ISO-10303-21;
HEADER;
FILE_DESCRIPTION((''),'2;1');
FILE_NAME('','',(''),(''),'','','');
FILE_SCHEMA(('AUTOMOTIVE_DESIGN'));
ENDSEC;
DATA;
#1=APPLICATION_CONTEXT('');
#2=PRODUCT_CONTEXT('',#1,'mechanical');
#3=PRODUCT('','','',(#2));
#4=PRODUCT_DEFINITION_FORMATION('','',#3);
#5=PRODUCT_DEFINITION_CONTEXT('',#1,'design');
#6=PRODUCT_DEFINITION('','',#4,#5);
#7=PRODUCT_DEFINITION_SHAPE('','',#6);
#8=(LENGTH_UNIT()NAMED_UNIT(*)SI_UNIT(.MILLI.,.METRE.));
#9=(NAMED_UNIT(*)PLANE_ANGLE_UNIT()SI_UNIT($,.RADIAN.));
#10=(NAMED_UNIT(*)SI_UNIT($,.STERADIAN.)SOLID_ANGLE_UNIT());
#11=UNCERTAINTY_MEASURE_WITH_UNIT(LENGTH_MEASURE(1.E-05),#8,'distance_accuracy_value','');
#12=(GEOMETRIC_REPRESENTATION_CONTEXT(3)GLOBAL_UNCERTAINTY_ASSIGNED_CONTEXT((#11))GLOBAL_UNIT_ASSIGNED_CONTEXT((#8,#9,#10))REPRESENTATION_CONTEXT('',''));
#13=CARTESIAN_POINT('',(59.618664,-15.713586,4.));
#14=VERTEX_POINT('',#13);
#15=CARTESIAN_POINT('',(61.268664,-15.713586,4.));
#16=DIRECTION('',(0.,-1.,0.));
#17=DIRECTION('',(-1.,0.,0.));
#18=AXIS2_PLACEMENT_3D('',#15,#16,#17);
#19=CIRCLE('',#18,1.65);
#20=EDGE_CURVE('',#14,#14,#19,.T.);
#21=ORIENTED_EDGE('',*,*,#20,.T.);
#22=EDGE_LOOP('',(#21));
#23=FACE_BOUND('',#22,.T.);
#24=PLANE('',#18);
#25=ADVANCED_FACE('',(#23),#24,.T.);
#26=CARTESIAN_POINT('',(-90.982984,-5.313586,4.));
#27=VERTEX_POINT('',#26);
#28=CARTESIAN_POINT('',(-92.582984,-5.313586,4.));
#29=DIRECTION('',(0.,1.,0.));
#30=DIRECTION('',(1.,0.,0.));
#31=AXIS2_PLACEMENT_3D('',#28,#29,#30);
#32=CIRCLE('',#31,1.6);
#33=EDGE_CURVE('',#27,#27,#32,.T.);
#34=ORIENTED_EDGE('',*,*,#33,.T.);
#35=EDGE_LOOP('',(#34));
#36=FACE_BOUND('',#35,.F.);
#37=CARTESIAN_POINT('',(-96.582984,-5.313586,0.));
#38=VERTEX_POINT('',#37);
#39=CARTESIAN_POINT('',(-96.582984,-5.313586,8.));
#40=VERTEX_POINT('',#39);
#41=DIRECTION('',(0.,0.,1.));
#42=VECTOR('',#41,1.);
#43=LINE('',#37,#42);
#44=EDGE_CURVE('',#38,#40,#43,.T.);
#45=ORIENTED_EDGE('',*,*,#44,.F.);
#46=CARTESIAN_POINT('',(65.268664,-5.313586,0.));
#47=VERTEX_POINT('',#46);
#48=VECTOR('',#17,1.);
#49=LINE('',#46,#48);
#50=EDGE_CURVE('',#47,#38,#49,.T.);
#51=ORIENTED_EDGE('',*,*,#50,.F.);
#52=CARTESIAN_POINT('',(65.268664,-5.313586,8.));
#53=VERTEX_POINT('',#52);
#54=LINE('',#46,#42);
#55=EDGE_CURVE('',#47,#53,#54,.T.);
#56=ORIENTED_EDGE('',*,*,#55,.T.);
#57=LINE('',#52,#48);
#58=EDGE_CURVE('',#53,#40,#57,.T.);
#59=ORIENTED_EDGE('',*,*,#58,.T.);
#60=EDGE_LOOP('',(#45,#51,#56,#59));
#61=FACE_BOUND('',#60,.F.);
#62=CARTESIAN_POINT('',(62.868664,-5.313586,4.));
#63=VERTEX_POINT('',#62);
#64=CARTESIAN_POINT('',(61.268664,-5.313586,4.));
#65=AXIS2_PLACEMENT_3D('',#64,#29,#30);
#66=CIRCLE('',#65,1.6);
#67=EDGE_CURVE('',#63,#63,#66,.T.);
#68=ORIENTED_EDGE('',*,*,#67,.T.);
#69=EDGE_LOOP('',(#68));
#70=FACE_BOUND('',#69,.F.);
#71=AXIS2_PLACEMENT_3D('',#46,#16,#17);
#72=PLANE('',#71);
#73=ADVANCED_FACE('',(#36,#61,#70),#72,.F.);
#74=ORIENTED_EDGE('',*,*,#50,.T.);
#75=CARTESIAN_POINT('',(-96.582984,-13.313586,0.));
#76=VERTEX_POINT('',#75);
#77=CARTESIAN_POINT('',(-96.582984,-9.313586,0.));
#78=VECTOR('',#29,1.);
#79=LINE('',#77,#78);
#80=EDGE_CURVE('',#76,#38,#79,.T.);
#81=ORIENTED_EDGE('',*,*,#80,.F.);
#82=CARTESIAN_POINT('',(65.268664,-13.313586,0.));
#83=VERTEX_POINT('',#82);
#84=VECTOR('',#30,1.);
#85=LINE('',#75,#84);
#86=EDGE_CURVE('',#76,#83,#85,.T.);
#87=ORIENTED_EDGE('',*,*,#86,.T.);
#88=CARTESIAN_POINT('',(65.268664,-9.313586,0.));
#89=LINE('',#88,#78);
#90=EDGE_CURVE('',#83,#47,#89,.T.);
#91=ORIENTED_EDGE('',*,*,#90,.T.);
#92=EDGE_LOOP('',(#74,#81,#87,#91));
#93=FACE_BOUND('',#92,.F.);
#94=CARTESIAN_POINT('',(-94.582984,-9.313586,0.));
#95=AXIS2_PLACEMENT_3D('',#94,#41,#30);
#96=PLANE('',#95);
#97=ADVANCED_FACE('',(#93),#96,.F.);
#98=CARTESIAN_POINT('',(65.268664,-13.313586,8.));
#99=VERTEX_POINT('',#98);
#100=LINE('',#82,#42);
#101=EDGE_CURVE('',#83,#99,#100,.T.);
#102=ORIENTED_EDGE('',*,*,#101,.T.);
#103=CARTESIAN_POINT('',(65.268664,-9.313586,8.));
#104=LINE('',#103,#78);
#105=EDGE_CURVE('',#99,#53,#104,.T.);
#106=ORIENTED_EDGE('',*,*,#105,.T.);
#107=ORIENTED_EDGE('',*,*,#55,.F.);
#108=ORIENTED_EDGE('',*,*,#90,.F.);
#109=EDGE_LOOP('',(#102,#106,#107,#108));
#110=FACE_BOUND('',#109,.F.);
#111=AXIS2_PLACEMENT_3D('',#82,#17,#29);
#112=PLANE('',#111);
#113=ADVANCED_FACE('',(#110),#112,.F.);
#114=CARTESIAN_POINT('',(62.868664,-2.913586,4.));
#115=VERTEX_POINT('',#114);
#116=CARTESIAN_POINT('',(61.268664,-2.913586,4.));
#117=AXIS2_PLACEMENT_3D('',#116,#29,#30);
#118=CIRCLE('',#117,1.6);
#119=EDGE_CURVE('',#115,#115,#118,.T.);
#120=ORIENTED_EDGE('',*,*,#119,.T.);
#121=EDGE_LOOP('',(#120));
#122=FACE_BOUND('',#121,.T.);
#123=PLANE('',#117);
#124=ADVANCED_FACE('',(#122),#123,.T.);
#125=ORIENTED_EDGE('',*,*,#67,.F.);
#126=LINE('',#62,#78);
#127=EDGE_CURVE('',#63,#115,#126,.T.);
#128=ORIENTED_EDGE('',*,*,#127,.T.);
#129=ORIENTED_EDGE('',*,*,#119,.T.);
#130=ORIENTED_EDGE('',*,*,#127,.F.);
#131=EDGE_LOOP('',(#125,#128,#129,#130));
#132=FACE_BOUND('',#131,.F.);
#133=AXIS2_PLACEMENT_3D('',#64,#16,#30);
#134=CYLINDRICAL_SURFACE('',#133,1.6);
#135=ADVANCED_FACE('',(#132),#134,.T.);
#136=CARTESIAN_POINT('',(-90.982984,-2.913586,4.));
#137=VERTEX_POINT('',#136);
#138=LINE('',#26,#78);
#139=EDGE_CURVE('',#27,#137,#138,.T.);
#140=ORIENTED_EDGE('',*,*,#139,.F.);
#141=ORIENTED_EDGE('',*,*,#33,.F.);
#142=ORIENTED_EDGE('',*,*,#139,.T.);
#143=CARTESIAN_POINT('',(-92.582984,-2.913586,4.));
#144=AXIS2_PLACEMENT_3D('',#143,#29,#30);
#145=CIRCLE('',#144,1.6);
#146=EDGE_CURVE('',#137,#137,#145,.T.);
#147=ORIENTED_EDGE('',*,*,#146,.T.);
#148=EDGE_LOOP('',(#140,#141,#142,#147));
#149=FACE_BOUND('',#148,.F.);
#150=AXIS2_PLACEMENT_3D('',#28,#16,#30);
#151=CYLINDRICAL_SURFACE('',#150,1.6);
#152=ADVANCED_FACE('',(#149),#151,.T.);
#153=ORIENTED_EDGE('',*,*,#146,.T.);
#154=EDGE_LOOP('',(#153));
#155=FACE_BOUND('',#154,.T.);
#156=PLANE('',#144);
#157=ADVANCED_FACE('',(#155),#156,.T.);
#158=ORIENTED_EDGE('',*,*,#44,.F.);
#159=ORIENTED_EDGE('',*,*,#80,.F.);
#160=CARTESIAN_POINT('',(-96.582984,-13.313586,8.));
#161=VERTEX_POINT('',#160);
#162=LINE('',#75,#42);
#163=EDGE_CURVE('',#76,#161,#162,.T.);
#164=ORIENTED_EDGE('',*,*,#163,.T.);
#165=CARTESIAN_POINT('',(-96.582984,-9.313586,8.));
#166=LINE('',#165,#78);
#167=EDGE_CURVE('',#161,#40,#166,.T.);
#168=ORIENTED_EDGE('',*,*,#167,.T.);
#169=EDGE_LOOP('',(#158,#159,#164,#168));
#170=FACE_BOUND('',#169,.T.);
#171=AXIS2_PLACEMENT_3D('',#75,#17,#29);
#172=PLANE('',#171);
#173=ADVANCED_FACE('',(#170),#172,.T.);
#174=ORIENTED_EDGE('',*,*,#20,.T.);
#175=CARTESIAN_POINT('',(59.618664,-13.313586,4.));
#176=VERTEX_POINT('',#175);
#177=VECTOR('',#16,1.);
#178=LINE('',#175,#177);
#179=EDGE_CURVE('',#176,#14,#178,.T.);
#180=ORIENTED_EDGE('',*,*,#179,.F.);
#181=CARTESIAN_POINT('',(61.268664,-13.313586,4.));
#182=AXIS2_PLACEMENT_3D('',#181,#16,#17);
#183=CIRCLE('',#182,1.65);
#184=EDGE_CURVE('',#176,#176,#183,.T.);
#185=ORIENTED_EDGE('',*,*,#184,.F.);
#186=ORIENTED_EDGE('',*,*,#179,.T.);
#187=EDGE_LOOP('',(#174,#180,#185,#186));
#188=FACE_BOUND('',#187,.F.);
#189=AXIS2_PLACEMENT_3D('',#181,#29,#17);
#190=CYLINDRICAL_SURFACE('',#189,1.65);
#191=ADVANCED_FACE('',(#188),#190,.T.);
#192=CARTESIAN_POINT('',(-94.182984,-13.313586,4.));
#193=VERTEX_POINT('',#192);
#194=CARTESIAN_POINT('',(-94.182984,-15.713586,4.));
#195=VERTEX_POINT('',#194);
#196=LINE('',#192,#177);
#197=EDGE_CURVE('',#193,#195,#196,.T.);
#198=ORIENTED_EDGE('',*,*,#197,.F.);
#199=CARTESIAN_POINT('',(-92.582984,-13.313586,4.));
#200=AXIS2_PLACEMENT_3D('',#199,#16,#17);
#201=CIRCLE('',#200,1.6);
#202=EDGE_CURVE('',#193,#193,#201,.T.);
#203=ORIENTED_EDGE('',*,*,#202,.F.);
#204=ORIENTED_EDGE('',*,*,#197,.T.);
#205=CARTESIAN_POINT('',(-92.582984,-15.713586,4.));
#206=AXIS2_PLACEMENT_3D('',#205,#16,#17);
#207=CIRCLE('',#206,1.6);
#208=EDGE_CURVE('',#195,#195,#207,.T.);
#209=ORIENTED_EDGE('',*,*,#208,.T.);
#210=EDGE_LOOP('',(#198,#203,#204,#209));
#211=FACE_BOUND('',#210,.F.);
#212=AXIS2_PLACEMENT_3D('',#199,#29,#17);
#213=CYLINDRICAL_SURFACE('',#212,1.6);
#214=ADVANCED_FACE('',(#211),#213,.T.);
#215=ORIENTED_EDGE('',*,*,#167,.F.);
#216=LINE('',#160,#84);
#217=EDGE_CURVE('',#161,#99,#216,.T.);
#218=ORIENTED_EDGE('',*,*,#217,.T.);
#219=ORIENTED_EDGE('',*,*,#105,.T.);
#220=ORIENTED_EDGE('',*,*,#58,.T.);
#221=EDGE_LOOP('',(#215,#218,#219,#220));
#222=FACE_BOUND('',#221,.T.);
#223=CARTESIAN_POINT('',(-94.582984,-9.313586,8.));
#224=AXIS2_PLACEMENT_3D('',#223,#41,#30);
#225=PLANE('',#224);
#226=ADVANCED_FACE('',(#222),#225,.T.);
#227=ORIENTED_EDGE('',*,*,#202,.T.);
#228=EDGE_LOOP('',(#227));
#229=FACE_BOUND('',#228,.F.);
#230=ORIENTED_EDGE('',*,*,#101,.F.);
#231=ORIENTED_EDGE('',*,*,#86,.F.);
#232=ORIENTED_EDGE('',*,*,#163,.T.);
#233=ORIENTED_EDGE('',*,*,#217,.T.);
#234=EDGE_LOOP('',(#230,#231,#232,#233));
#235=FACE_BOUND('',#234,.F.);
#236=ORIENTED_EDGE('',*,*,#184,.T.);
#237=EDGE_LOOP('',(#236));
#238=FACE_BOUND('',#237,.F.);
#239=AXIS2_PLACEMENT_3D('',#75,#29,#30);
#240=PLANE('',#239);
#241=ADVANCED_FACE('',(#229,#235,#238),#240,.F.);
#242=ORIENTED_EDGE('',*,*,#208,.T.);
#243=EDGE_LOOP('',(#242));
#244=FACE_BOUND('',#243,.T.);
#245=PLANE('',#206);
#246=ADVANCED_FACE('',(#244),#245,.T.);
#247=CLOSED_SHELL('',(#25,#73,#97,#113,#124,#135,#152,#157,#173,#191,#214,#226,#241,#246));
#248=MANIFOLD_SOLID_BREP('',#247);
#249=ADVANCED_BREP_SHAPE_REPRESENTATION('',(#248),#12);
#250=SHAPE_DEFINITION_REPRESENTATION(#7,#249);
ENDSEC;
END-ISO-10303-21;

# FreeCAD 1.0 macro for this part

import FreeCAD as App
import Part
import Sketcher

V = App.Vector


def add_polygon(sketch, points):
    """Adds a closed chain of lines whose ends are joined by coincident constraints."""
    first, n = sketch.GeometryCount, len(points)
    for a, b in zip(points, points[1:] + points[:1]):
        sketch.addGeometry(Part.LineSegment(App.Vector(*a, 0), App.Vector(*b, 0)), False)
    for i in range(n):
        sketch.addConstraint(Sketcher.Constraint("Coincident", first + i, 2, first + (i + 1) % n, 1))

doc = App.newDocument("Part")
params = doc.addObject("Spreadsheet::Sheet", "Params")
for row, (alias, value) in enumerate([
    ("sketch1_height", "8 mm"),
    ("pad1_length", "8 mm"),
    ("sketch2_diameter", "3.2 mm"),
    ("pad2_length", "2.4 mm"),
    ("sketch3_diameter", "3.2 mm"),
    ("sketch3_diameter2", "3.3 mm"),
    ("pad3_length", "2.4 mm"),
], start=1):
    params.set(f"A{row}", alias)
    params.set(f"B{row}", "=" + value)
    params.setAlias(f"B{row}", alias)

body = doc.addObject("PartDesign::Body", "Body")

# Sketch on XY plane
sketch1 = body.newObject("Sketcher::SketchObject", "Sketch")
sketch1.AttachmentSupport = (doc.getObject("XY_Plane"), [""])
sketch1.MapMode = "FlatFace"
add_polygon(sketch1, [(-97, -5), (-97, -13), (65, -13), (65, -5)])  # lines 0-3
sketch1.addConstraint([
    Sketcher.Constraint("Vertical", 0),
    Sketcher.Constraint("Horizontal", 1),
    Sketcher.Constraint("Vertical", 2),
    Sketcher.Constraint("Horizontal", 3),
    Sketcher.Constraint("DistanceY", 0, 2, 0, 1, 8.0),
    Sketcher.Constraint("DistanceX", 1, 1, 1, 2, 161.851648),
    Sketcher.Constraint("DistanceX", 0, 2, -1, 1, 96.582984),
    Sketcher.Constraint("DistanceY", 0, 2, -1, 1, 13.313586),
])
sketch1.setExpression("Constraints[8]", "Params.sketch1_height")
pad1 = body.newObject("PartDesign::Pad", "Pad")
pad1.Profile = sketch1
pad1.setExpression("Length", "Params.pad1_length")

# Sketch on XZ plane
sketch2 = body.newObject("Sketcher::SketchObject", "Sketch001")
sketch2.AttachmentSupport = (doc.getObject("XZ_Plane"), [""])
sketch2.MapMode = "FlatFace"
sketch2.AttachmentOffset = App.Placement(V(0, 0, 5.313586), App.Rotation())
sketch2.addGeometry([
    Part.Circle(V(-92.6, 4, 0), V(0, 0, 1), 1.6),
    Part.Circle(V(61.3, 4, 0), V(0, 0, 1), 1.6),
], False)
sketch2.addConstraint([
    Sketcher.Constraint("Equal", 0, 1),
    Sketcher.Constraint("Horizontal", 0, 3, 1, 3),
    Sketcher.Constraint("Diameter", 0, 3.2),
    Sketcher.Constraint("DistanceY", -1, 1, 0, 3, 4.0),
    Sketcher.Constraint("DistanceX", 0, 3, 1, 3, 153.851648),
    Sketcher.Constraint("DistanceX", 0, 3, -1, 1, 92.582984),
])
sketch2.setExpression("Constraints[2]", "Params.sketch2_diameter")
pad2 = body.newObject("PartDesign::Pad", "Pad001")
pad2.Profile = sketch2
pad2.setExpression("Length", "Params.pad2_length")
pad2.Reversed = True

# Sketch on XZ plane
sketch3 = body.newObject("Sketcher::SketchObject", "Sketch002")
sketch3.AttachmentSupport = (doc.getObject("XZ_Plane"), [""])
sketch3.MapMode = "FlatFace"
sketch3.AttachmentOffset = App.Placement(V(0, 0, 13.313586), App.Rotation())
sketch3.addGeometry([
    Part.Circle(V(-92.6, 4, 0), V(0, 0, 1), 1.6),
    Part.Circle(V(61.3, 4, 0), V(0, 0, 1), 1.6),
], False)
sketch3.addConstraint([
    Sketcher.Constraint("Horizontal", 0, 3, 1, 3),
    Sketcher.Constraint("Diameter", 0, 3.2),
    Sketcher.Constraint("Diameter", 1, 3.3),
    Sketcher.Constraint("DistanceY", -1, 1, 0, 3, 4.0),
    Sketcher.Constraint("DistanceX", 0, 3, 1, 3, 153.851648),
    Sketcher.Constraint("DistanceX", 0, 3, -1, 1, 92.582984),
])
sketch3.setExpression("Constraints[1]", "Params.sketch3_diameter")
sketch3.setExpression("Constraints[2]", "Params.sketch3_diameter2")
pad3 = body.newObject("PartDesign::Pad", "Pad002")
pad3.Profile = sketch3
pad3.setExpression("Length", "Params.pad3_length")

doc.recompute()
